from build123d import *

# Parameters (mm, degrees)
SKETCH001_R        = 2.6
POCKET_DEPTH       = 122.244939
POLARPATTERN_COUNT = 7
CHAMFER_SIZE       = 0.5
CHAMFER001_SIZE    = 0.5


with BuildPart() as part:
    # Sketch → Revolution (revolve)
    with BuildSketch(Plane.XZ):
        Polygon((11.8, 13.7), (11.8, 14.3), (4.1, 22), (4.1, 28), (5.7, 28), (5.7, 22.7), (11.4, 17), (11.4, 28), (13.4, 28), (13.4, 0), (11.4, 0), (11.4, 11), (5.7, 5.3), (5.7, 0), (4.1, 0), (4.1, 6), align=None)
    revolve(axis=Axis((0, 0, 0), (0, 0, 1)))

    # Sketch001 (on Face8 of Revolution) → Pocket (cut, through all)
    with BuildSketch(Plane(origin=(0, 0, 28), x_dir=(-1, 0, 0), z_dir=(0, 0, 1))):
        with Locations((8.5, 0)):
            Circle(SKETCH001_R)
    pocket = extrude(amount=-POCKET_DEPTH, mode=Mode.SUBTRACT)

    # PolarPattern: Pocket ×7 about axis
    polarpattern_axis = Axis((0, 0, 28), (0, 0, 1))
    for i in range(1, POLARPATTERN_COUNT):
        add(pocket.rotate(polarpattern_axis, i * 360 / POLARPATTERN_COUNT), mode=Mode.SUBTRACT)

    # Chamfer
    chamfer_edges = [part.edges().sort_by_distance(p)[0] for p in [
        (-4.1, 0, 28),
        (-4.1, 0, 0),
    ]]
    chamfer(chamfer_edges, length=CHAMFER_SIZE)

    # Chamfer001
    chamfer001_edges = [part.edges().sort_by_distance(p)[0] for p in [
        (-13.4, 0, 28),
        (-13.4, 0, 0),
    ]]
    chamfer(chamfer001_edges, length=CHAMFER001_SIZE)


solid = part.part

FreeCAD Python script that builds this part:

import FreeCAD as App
import Part
import Sketcher

V = App.Vector
Q = App.Units.Quantity


def edges_at(feature, points):
    """Names of the edges that pass closest to the given points."""
    edges = feature.Shape.Edges
    near = lambda p: min(range(len(edges)), key=lambda i: edges[i].distToShape(Part.Vertex(*p))[0])
    return sorted({f"Edge{near(p) + 1}" for p in points})

doc = App.newDocument("Part")
body = doc.addObject("PartDesign::Body", "Body")

sketch1 = doc.addObject("Sketcher::SketchObject", "Sketch")
body.addObject(sketch1)
sketch1.AttachmentSupport = (doc.XZ_Plane, [""])
sketch1.MapMode = "FlatFace"
sketch1.addGeometry(Part.LineSegment(V(11.8, 14.3, 0), V(11.8, 13.7, 0)), False)
sketch1.addGeometry(Part.LineSegment(V(11.8, 13.7, 0), V(4.1, 6, 0)), False)
sketch1.addGeometry(Part.LineSegment(V(4.1, 6, 0), V(4.1, 0, 0)), False)
sketch1.addGeometry(Part.LineSegment(V(4.1, 0, 0), V(5.7, 0, 0)), False)
sketch1.addGeometry(Part.LineSegment(V(5.7, 0, 0), V(5.7, 5.3, 0)), False)
sketch1.addGeometry(Part.LineSegment(V(5.7, 5.3, 0), V(11.4, 11, 0)), False)
sketch1.addGeometry(Part.LineSegment(V(11.4, 11, 0), V(11.4, 0, 0)), False)
sketch1.addGeometry(Part.LineSegment(V(11.4, 0, 0), V(13.4, 0, 0)), False)
sketch1.addGeometry(Part.LineSegment(V(13.4, 0, 0), V(13.4, 28, 0)), False)
sketch1.addGeometry(Part.LineSegment(V(13.4, 28, 0), V(11.4, 28, 0)), False)
sketch1.addGeometry(Part.LineSegment(V(11.4, 28, 0), V(11.4, 17, 0)), False)
sketch1.addGeometry(Part.LineSegment(V(11.4, 17, 0), V(5.7, 22.7, 0)), False)
sketch1.addGeometry(Part.LineSegment(V(5.7, 22.7, 0), V(5.7, 28, 0)), False)
sketch1.addGeometry(Part.LineSegment(V(5.7, 28, 0), V(4.1, 28, 0)), False)
sketch1.addGeometry(Part.LineSegment(V(4.1, 28, 0), V(4.1, 22, 0)), False)
sketch1.addGeometry(Part.LineSegment(V(4.1, 22, 0), V(11.8, 14.3, 0)), False)
sketch1.addConstraint(Sketcher.Constraint("Coincident", 0, 2, 1, 1))
sketch1.addConstraint(Sketcher.Constraint("Coincident", 1, 2, 2, 1))
sketch1.addConstraint(Sketcher.Constraint("Coincident", 2, 2, 3, 1))
sketch1.addConstraint(Sketcher.Constraint("Coincident", 3, 2, 4, 1))
sketch1.addConstraint(Sketcher.Constraint("Coincident", 4, 2, 5, 1))
sketch1.addConstraint(Sketcher.Constraint("Coincident", 5, 2, 6, 1))
sketch1.addConstraint(Sketcher.Constraint("Coincident", 6, 2, 7, 1))
sketch1.addConstraint(Sketcher.Constraint("Coincident", 7, 2, 8, 1))
sketch1.addConstraint(Sketcher.Constraint("Coincident", 8, 2, 9, 1))
sketch1.addConstraint(Sketcher.Constraint("Coincident", 9, 2, 10, 1))
sketch1.addConstraint(Sketcher.Constraint("Coincident", 10, 2, 11, 1))
sketch1.addConstraint(Sketcher.Constraint("Coincident", 11, 2, 12, 1))
sketch1.addConstraint(Sketcher.Constraint("Coincident", 12, 2, 13, 1))
sketch1.addConstraint(Sketcher.Constraint("Coincident", 13, 2, 14, 1))
sketch1.addConstraint(Sketcher.Constraint("Coincident", 14, 2, 15, 1))
sketch1.addConstraint(Sketcher.Constraint("Coincident", 15, 2, 0, 1))
sketch1.addConstraint(Sketcher.Constraint("Vertical", 0))
sketch1.addConstraint(Sketcher.Constraint("Vertical", 2))
sketch1.addConstraint(Sketcher.Constraint("Horizontal", 3))
sketch1.addConstraint(Sketcher.Constraint("Vertical", 4))
sketch1.addConstraint(Sketcher.Constraint("Vertical", 6))
sketch1.addConstraint(Sketcher.Constraint("Horizontal", 7))
sketch1.addConstraint(Sketcher.Constraint("Vertical", 8))
sketch1.addConstraint(Sketcher.Constraint("Horizontal", 9))
sketch1.addConstraint(Sketcher.Constraint("Vertical", 10))
sketch1.addConstraint(Sketcher.Constraint("Vertical", 12))
sketch1.addConstraint(Sketcher.Constraint("Horizontal", 13))
sketch1.addConstraint(Sketcher.Constraint("Vertical", 14))
sketch1.addConstraint(Sketcher.Constraint("PointOnObject", 2, 2, -1))
sketch1.addConstraint(Sketcher.Constraint("PointOnObject", 6, 2, -1))
sketch1.addConstraint(Sketcher.Constraint("Parallel", 1, 5))
sketch1.addConstraint(Sketcher.Constraint("Perpendicular", 5, 11))
sketch1.addConstraint(Sketcher.Constraint("Parallel", 11, 15))
sketch1.addConstraint(Sketcher.Constraint("Horizontal", 9, 2, 12, 2))
sketch1.addConstraint(Sketcher.Constraint("Vertical", 6, 2, 9, 2))
sketch1.addConstraint(Sketcher.Constraint("Vertical", 4, 2, 11, 2))
sketch1.addConstraint(Sketcher.Constraint("Vertical", 2, 2, 13, 2))
sketch1.addConstraint(Sketcher.Constraint("Equal", 6, 10))
sketch1.addConstraint(Sketcher.Constraint("Equal", 4, 12))
sketch1.addConstraint(Sketcher.Constraint("Equal", 2, 14))
sketch1.addConstraint(Sketcher.Constraint("DistanceX", 7, 1, 7, 2, Q("2 mm")))
sketch1.addConstraint(Sketcher.Constraint("DistanceY", 2, 2, 2, 1, Q("6 mm")))
sketch1.addConstraint(Sketcher.Constraint("DistanceY", 6, 2, 6, 1, Q("11 mm")))
sketch1.addConstraint(Sketcher.Constraint("DistanceY", 8, 1, 8, 2, Q("28 mm")))
sketch1.addConstraint(Sketcher.Constraint("DistanceX", 3, 1, 3, 2, Q("1.6 mm")))
sketch1.addConstraint(Sketcher.Constraint("DistanceY", 0, 2, 0, 1, Q("0.6 mm")))
sketch1.addConstraint(Sketcher.Constraint("DistanceY", 4, 1, 4, 2, Q("5.3 mm")))
sketch1.addConstraint(Sketcher.Constraint("DistanceX", -1, 1, 0, 2, Q("11.8 mm")))
revolution = doc.addObject("PartDesign::Revolution", "Revolution")
body.addObject(revolution)
revolution.Profile = sketch1
revolution.ReferenceAxis = (sketch1, ["V_Axis"])
revolution.Angle = 360

sketch2 = doc.addObject("Sketcher::SketchObject", "Sketch001")
body.addObject(sketch2)
sketch2.AttachmentSupport = (doc.XY_Plane, [""])
sketch2.MapMode = "FlatFace"
sketch2.AttachmentOffset = App.Placement(V(0, 0, 28), App.Rotation())
sketch2.addGeometry(Part.Circle(V(-8.5, 0, 0), V(0, 0, 1), 2.6), False)
sketch2.addConstraint(Sketcher.Constraint("PointOnObject", 0, 3, -1))
sketch2.addConstraint(Sketcher.Constraint("Diameter", 0, Q("5.2 mm")))
sketch2.addConstraint(Sketcher.Constraint("DistanceX", 0, 3, -1, 1, Q("8.5 mm")))
pocket1 = doc.addObject("PartDesign::Pocket", "Pocket")
body.addObject(pocket1)
pocket1.Profile = sketch2
pocket1.Type = "ThroughAll"
doc.recompute()

polarpattern = doc.addObject("PartDesign::PolarPattern", "PolarPattern")
body.addObject(polarpattern)
polarpattern.Originals = [pocket1]
polarpattern.Axis = (doc.Z_Axis, [""])
polarpattern.Angle = 360
polarpattern.Occurrences = 7
body.Tip = polarpattern
doc.recompute()

chamfer = doc.addObject("PartDesign::Chamfer", "Chamfer")
body.addObject(chamfer)
chamfer.Base = (polarpattern, edges_at(polarpattern, [(-4.1, 0, 28), (-4.1, 0, 0)]))
chamfer.Size = 0.5
doc.recompute()

chamfer2 = doc.addObject("PartDesign::Chamfer", "Chamfer001")
body.addObject(chamfer2)
chamfer2.Base = (chamfer, edges_at(chamfer, [(-13.4, 0, 28), (-13.4, 0, 0)]))
chamfer2.Size = 0.5

doc.recompute()
